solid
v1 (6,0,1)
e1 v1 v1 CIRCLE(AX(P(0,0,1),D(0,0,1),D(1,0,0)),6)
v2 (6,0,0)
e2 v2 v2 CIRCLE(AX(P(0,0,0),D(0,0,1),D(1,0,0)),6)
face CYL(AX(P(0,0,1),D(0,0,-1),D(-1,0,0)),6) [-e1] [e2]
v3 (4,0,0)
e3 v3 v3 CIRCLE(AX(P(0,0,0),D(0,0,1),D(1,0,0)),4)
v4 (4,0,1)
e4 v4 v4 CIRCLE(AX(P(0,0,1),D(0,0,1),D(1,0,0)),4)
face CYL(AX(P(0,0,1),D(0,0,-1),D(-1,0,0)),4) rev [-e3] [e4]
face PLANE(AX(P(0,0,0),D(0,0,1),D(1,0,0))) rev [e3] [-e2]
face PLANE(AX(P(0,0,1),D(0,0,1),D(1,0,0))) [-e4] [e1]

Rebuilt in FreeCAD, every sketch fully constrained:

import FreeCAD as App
import Part
import Sketcher
from FreeCAD import Vector
Q = App.Units.Quantity

doc = App.newDocument("Part")
params = doc.addObject("Spreadsheet::Sheet", "Params")
for row, (alias, value) in enumerate([
    ("sketch1_diameter", "12 mm"),
    ("sketch1_diameter2", "8 mm"),
    ("pad1_length", "1 mm"),
], start=1):
    params.set(f"A{row}", alias)
    params.set(f"B{row}", "=" + value)
    params.setAlias(f"B{row}", alias)

body = doc.addObject("PartDesign::Body", "Body")

# Sketch on XY plane
sketch1 = doc.addObject("Sketcher::SketchObject", "Sketch")
body.addObject(sketch1)
sketch1.AttachmentSupport = (doc.XY_Plane, [""])
sketch1.MapMode = "FlatFace"
sketch1.addGeometry([
    Part.Circle(Vector(0, 0, 0), Vector(0, 0, 1), 6),
    Part.Circle(Vector(0, 0, 0), Vector(0, 0, 1), 4),
], False)
sketch1.addConstraint([
    Sketcher.Constraint("Coincident", 0, 3, -1, 1),
    Sketcher.Constraint("Coincident", 1, 3, -1, 1),
    Sketcher.Constraint("Diameter", 0, Q("12 mm")),
    Sketcher.Constraint("Diameter", 1, Q("8 mm")),
])
sketch1.setExpression("Constraints[2]", "Params.sketch1_diameter")
sketch1.setExpression("Constraints[3]", "Params.sketch1_diameter2")
pad1 = doc.addObject("PartDesign::Pad", "Pad")
body.addObject(pad1)
pad1.Profile = sketch1
pad1.setExpression("Length", "Params.pad1_length")

doc.recompute()
